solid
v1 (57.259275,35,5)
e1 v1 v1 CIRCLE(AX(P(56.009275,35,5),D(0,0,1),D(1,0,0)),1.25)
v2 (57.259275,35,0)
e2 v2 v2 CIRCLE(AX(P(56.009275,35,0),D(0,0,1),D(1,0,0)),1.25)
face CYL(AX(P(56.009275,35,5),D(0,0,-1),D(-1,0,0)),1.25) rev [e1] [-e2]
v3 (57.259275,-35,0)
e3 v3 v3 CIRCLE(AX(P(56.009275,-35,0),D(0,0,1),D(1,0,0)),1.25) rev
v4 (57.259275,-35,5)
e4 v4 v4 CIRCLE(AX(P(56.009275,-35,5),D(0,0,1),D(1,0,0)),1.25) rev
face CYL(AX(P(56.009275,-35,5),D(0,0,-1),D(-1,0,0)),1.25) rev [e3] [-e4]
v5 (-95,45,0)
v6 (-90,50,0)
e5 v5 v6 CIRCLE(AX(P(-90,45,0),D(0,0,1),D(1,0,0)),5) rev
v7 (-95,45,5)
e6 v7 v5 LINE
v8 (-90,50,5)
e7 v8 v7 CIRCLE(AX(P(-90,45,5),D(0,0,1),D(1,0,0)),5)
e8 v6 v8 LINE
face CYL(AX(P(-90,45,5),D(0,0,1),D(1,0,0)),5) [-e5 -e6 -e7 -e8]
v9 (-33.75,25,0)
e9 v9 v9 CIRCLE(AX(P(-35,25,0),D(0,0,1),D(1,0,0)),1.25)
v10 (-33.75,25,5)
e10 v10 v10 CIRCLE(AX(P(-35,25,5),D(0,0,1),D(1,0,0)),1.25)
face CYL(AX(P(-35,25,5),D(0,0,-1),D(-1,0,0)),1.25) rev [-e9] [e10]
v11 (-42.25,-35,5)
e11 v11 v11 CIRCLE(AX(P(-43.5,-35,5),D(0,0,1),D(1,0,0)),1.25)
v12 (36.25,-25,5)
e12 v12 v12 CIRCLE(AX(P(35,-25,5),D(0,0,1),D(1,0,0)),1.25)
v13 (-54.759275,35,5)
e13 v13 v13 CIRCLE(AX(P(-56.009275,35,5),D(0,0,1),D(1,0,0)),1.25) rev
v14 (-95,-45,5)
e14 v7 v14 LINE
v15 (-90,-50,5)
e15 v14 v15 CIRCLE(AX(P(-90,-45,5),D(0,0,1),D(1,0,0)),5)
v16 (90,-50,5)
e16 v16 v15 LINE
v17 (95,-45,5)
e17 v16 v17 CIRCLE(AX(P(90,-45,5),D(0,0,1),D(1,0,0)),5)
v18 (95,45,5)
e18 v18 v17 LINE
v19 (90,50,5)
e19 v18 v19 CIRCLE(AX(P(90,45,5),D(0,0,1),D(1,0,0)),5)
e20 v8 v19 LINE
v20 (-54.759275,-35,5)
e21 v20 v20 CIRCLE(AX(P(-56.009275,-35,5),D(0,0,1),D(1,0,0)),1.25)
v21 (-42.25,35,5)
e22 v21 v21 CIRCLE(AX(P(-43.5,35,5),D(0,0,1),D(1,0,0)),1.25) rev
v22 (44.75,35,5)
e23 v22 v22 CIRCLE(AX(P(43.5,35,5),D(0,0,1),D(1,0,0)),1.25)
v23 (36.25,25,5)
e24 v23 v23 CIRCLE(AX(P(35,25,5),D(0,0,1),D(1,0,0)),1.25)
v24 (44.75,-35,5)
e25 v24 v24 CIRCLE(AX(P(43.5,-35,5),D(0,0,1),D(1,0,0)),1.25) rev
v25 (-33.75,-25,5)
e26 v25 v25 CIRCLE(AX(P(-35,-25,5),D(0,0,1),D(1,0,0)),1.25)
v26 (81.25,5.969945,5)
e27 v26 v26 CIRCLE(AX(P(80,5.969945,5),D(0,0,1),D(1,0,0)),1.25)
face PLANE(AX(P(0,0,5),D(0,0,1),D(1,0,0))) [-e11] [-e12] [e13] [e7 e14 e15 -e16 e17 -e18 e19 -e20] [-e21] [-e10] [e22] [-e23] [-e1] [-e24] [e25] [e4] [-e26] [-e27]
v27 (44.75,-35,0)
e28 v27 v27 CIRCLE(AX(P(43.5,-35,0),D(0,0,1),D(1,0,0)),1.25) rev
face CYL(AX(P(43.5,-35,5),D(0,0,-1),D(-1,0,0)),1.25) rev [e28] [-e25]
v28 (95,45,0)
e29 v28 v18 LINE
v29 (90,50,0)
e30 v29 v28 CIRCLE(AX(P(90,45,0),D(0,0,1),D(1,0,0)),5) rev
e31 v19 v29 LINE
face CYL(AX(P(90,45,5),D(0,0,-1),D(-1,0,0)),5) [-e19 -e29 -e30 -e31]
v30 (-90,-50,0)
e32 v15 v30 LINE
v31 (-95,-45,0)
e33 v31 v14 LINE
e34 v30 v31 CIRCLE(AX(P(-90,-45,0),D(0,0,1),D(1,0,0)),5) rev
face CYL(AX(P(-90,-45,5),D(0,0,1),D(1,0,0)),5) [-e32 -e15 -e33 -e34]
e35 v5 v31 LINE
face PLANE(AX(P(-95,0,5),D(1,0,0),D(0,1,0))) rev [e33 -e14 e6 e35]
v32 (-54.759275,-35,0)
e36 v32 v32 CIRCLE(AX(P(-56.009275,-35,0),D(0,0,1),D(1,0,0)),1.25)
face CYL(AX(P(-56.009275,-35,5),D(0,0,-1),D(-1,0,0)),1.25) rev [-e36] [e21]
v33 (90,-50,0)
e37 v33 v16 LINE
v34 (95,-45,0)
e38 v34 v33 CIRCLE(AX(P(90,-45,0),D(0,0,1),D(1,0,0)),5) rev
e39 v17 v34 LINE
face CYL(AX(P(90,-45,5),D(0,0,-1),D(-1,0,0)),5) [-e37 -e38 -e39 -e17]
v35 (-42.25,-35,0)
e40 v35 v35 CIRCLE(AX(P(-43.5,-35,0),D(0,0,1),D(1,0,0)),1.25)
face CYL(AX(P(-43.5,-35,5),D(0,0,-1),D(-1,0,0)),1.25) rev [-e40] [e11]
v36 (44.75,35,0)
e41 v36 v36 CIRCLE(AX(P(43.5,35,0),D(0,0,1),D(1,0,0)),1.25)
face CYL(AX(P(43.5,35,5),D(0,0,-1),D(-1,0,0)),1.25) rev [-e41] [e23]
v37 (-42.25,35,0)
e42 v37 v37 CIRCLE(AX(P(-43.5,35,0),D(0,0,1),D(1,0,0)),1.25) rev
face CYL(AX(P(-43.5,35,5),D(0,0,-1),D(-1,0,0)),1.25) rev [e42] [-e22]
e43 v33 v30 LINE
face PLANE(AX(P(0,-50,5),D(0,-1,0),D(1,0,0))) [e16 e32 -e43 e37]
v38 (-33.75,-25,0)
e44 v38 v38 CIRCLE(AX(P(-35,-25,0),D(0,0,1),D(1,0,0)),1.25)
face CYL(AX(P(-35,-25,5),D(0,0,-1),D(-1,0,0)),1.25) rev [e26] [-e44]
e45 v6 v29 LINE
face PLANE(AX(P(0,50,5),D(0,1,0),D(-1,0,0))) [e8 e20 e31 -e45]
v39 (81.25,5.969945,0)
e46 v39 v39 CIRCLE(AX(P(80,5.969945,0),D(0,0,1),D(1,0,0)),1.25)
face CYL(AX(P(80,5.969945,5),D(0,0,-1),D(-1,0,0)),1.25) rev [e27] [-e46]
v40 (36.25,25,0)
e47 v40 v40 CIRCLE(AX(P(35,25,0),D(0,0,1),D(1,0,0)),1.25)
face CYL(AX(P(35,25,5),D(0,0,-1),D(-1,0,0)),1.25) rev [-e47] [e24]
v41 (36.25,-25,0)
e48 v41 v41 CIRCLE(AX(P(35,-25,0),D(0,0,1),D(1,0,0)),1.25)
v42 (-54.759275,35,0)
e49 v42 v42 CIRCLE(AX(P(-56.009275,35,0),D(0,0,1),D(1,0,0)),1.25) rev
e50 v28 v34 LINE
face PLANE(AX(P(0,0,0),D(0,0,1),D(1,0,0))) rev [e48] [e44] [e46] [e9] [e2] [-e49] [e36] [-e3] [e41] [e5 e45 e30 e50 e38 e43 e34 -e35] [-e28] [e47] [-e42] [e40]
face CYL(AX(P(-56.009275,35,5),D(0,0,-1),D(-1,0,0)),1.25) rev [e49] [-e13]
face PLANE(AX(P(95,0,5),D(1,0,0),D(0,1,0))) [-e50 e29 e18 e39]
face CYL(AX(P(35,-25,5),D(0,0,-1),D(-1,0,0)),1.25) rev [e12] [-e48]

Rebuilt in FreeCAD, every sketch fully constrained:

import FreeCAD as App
import Part
import Sketcher

V = App.Vector


def edges_at(feature, points):
    """Names of the edges that pass closest to the given points."""
    edges = feature.Shape.Edges
    near = lambda p: min(range(len(edges)), key=lambda i: edges[i].distToShape(Part.Vertex(*p))[0])
    return sorted({f"Edge{near(p) + 1}" for p in points})


def add_polygon(sketch, points):
    """Adds a closed chain of lines whose ends are joined by coincident constraints."""
    first, n = sketch.GeometryCount, len(points)
    for a, b in zip(points, points[1:] + points[:1]):
        sketch.addGeometry(Part.LineSegment(App.Vector(*a, 0), App.Vector(*b, 0)), False)
    for i in range(n):
        sketch.addConstraint(Sketcher.Constraint("Coincident", first + i, 2, first + (i + 1) % n, 1))

doc = App.newDocument("Part")
body = doc.addObject("PartDesign::Body", "Body")

sketch1 = doc.addObject("Sketcher::SketchObject", "Sketch")
body.addObject(sketch1)
sketch1.AttachmentSupport = (doc.XY_Plane, [""])
sketch1.MapMode = "FlatFace"
add_polygon(sketch1, [(-95, 50), (-95, -50), (95, -50), (95, 50)])
sketch1.addGeometry(Part.Circle(V(-56, -35, 0), V(0, 0, 1), 1.2), False)
sketch1.addGeometry(Part.Circle(V(-43.5, -35, 0), V(0, 0, 1), 1.2), False)
sketch1.addGeometry(Part.Circle(V(-35, -25, 0), V(0, 0, 1), 1.2), False)
sketch1.addGeometry(Part.Circle(V(43.5, -35, 0), V(0, 0, 1), 1.2), False)
sketch1.addGeometry(Part.Circle(V(35, -25, 0), V(0, 0, 1), 1.2), False)
sketch1.addGeometry(Part.Circle(V(56, -35, 0), V(0, 0, 1), 1.2), False)
sketch1.addGeometry(Part.Circle(V(-35, 25, 0), V(0, 0, 1), 1.2), False)
sketch1.addGeometry(Part.Circle(V(-56, 35, 0), V(0, 0, 1), 1.2), False)
sketch1.addGeometry(Part.Circle(V(-43.5, 35, 0), V(0, 0, 1), 1.2), False)
sketch1.addGeometry(Part.Circle(V(80, 6, 0), V(0, 0, 1), 1.2), False)
sketch1.addGeometry(Part.Circle(V(35, 25, 0), V(0, 0, 1), 1.2), False)
sketch1.addGeometry(Part.Circle(V(43.5, 35, 0), V(0, 0, 1), 1.2), False)
sketch1.addGeometry(Part.Circle(V(56, 35, 0), V(0, 0, 1), 1.2), False)
sketch1.addConstraint(Sketcher.Constraint("Vertical", 0))
sketch1.addConstraint(Sketcher.Constraint("Horizontal", 1))
sketch1.addConstraint(Sketcher.Constraint("Vertical", 2))
sketch1.addConstraint(Sketcher.Constraint("Horizontal", 3))
sketch1.addConstraint(Sketcher.Constraint("Equal", 4, 5))
sketch1.addConstraint(Sketcher.Constraint("Equal", 5, 6))
sketch1.addConstraint(Sketcher.Constraint("Equal", 6, 7))
sketch1.addConstraint(Sketcher.Constraint("Equal", 7, 8))
sketch1.addConstraint(Sketcher.Constraint("Equal", 8, 9))
sketch1.addConstraint(Sketcher.Constraint("Equal", 9, 10))
sketch1.addConstraint(Sketcher.Constraint("Equal", 10, 11))
sketch1.addConstraint(Sketcher.Constraint("Equal", 11, 12))
sketch1.addConstraint(Sketcher.Constraint("Equal", 12, 13))
sketch1.addConstraint(Sketcher.Constraint("Equal", 13, 14))
sketch1.addConstraint(Sketcher.Constraint("Equal", 14, 15))
sketch1.addConstraint(Sketcher.Constraint("Equal", 15, 16))
sketch1.addConstraint(Sketcher.Constraint("Symmetric", 8, 3, 10, 3, -1, 1))
sketch1.addConstraint(Sketcher.Constraint("Symmetric", 9, 3, 11, 3, -1, 1))
sketch1.addConstraint(Sketcher.Constraint("Symmetric", 7, 3, 12, 3, -1, 1))
sketch1.addConstraint(Sketcher.Constraint("Symmetric", 6, 3, 14, 3, -1, 1))
sketch1.addConstraint(Sketcher.Constraint("Symmetric", 5, 3, 15, 3, -1, 1))
sketch1.addConstraint(Sketcher.Constraint("Symmetric", 4, 3, 16, 3, -1, 1))
sketch1.addConstraint(Sketcher.Constraint("Symmetric", 0, 2, 2, 2, -1, 1))
sketch1.addConstraint(Sketcher.Constraint("Symmetric", 5, 3, 7, 3, -2))
sketch1.addConstraint(Sketcher.Constraint("Symmetric", 6, 3, 8, 3, -2))
sketch1.addConstraint(Sketcher.Constraint("Symmetric", 4, 3, 9, 3, -2))
sketch1.addConstraint(Sketcher.Constraint("Horizontal", 4, 3, 5, 3))
sketch1.addConstraint(Sketcher.Constraint("Diameter", 4, 2.5))
sketch1.addConstraint(Sketcher.Constraint("DistanceX", 1, 1, 1, 2, 190.0))
sketch1.addConstraint(Sketcher.Constraint("DistanceY", 0, 2, 0, 1, 100.0))
sketch1.addConstraint(Sketcher.Constraint("DistanceY", 4, 3, -1, 1, 35.0))
sketch1.addConstraint(Sketcher.Constraint("DistanceX", 6, 3, -1, 1, 35.0))
sketch1.addConstraint(Sketcher.Constraint("DistanceY", 6, 3, -1, 1, 25.0))
sketch1.addConstraint(Sketcher.Constraint("DistanceX", -1, 1, 13, 3, 80.0))
sketch1.addConstraint(Sketcher.Constraint("DistanceX", 5, 3, 7, 3, 87.0))
sketch1.addConstraint(Sketcher.Constraint("DistanceX", 4, 3, 9, 3, 112.018549))
sketch1.addConstraint(Sketcher.Constraint("DistanceY", -1, 1, 13, 3, 5.969945))
pad1 = doc.addObject("PartDesign::Pad", "Pad")
body.addObject(pad1)
pad1.Profile = sketch1
pad1.Length = 5
doc.recompute()

fillet = doc.addObject("PartDesign::Fillet", "Fillet")
body.addObject(fillet)
fillet.Base = (pad1, edges_at(pad1, [
    (95, 50, 2.5),
    (95, -50, 2.5),
    (-95, -50, 2.5),
    (-95, 50, 2.5),
]))
fillet.Radius = 5

doc.recompute()
